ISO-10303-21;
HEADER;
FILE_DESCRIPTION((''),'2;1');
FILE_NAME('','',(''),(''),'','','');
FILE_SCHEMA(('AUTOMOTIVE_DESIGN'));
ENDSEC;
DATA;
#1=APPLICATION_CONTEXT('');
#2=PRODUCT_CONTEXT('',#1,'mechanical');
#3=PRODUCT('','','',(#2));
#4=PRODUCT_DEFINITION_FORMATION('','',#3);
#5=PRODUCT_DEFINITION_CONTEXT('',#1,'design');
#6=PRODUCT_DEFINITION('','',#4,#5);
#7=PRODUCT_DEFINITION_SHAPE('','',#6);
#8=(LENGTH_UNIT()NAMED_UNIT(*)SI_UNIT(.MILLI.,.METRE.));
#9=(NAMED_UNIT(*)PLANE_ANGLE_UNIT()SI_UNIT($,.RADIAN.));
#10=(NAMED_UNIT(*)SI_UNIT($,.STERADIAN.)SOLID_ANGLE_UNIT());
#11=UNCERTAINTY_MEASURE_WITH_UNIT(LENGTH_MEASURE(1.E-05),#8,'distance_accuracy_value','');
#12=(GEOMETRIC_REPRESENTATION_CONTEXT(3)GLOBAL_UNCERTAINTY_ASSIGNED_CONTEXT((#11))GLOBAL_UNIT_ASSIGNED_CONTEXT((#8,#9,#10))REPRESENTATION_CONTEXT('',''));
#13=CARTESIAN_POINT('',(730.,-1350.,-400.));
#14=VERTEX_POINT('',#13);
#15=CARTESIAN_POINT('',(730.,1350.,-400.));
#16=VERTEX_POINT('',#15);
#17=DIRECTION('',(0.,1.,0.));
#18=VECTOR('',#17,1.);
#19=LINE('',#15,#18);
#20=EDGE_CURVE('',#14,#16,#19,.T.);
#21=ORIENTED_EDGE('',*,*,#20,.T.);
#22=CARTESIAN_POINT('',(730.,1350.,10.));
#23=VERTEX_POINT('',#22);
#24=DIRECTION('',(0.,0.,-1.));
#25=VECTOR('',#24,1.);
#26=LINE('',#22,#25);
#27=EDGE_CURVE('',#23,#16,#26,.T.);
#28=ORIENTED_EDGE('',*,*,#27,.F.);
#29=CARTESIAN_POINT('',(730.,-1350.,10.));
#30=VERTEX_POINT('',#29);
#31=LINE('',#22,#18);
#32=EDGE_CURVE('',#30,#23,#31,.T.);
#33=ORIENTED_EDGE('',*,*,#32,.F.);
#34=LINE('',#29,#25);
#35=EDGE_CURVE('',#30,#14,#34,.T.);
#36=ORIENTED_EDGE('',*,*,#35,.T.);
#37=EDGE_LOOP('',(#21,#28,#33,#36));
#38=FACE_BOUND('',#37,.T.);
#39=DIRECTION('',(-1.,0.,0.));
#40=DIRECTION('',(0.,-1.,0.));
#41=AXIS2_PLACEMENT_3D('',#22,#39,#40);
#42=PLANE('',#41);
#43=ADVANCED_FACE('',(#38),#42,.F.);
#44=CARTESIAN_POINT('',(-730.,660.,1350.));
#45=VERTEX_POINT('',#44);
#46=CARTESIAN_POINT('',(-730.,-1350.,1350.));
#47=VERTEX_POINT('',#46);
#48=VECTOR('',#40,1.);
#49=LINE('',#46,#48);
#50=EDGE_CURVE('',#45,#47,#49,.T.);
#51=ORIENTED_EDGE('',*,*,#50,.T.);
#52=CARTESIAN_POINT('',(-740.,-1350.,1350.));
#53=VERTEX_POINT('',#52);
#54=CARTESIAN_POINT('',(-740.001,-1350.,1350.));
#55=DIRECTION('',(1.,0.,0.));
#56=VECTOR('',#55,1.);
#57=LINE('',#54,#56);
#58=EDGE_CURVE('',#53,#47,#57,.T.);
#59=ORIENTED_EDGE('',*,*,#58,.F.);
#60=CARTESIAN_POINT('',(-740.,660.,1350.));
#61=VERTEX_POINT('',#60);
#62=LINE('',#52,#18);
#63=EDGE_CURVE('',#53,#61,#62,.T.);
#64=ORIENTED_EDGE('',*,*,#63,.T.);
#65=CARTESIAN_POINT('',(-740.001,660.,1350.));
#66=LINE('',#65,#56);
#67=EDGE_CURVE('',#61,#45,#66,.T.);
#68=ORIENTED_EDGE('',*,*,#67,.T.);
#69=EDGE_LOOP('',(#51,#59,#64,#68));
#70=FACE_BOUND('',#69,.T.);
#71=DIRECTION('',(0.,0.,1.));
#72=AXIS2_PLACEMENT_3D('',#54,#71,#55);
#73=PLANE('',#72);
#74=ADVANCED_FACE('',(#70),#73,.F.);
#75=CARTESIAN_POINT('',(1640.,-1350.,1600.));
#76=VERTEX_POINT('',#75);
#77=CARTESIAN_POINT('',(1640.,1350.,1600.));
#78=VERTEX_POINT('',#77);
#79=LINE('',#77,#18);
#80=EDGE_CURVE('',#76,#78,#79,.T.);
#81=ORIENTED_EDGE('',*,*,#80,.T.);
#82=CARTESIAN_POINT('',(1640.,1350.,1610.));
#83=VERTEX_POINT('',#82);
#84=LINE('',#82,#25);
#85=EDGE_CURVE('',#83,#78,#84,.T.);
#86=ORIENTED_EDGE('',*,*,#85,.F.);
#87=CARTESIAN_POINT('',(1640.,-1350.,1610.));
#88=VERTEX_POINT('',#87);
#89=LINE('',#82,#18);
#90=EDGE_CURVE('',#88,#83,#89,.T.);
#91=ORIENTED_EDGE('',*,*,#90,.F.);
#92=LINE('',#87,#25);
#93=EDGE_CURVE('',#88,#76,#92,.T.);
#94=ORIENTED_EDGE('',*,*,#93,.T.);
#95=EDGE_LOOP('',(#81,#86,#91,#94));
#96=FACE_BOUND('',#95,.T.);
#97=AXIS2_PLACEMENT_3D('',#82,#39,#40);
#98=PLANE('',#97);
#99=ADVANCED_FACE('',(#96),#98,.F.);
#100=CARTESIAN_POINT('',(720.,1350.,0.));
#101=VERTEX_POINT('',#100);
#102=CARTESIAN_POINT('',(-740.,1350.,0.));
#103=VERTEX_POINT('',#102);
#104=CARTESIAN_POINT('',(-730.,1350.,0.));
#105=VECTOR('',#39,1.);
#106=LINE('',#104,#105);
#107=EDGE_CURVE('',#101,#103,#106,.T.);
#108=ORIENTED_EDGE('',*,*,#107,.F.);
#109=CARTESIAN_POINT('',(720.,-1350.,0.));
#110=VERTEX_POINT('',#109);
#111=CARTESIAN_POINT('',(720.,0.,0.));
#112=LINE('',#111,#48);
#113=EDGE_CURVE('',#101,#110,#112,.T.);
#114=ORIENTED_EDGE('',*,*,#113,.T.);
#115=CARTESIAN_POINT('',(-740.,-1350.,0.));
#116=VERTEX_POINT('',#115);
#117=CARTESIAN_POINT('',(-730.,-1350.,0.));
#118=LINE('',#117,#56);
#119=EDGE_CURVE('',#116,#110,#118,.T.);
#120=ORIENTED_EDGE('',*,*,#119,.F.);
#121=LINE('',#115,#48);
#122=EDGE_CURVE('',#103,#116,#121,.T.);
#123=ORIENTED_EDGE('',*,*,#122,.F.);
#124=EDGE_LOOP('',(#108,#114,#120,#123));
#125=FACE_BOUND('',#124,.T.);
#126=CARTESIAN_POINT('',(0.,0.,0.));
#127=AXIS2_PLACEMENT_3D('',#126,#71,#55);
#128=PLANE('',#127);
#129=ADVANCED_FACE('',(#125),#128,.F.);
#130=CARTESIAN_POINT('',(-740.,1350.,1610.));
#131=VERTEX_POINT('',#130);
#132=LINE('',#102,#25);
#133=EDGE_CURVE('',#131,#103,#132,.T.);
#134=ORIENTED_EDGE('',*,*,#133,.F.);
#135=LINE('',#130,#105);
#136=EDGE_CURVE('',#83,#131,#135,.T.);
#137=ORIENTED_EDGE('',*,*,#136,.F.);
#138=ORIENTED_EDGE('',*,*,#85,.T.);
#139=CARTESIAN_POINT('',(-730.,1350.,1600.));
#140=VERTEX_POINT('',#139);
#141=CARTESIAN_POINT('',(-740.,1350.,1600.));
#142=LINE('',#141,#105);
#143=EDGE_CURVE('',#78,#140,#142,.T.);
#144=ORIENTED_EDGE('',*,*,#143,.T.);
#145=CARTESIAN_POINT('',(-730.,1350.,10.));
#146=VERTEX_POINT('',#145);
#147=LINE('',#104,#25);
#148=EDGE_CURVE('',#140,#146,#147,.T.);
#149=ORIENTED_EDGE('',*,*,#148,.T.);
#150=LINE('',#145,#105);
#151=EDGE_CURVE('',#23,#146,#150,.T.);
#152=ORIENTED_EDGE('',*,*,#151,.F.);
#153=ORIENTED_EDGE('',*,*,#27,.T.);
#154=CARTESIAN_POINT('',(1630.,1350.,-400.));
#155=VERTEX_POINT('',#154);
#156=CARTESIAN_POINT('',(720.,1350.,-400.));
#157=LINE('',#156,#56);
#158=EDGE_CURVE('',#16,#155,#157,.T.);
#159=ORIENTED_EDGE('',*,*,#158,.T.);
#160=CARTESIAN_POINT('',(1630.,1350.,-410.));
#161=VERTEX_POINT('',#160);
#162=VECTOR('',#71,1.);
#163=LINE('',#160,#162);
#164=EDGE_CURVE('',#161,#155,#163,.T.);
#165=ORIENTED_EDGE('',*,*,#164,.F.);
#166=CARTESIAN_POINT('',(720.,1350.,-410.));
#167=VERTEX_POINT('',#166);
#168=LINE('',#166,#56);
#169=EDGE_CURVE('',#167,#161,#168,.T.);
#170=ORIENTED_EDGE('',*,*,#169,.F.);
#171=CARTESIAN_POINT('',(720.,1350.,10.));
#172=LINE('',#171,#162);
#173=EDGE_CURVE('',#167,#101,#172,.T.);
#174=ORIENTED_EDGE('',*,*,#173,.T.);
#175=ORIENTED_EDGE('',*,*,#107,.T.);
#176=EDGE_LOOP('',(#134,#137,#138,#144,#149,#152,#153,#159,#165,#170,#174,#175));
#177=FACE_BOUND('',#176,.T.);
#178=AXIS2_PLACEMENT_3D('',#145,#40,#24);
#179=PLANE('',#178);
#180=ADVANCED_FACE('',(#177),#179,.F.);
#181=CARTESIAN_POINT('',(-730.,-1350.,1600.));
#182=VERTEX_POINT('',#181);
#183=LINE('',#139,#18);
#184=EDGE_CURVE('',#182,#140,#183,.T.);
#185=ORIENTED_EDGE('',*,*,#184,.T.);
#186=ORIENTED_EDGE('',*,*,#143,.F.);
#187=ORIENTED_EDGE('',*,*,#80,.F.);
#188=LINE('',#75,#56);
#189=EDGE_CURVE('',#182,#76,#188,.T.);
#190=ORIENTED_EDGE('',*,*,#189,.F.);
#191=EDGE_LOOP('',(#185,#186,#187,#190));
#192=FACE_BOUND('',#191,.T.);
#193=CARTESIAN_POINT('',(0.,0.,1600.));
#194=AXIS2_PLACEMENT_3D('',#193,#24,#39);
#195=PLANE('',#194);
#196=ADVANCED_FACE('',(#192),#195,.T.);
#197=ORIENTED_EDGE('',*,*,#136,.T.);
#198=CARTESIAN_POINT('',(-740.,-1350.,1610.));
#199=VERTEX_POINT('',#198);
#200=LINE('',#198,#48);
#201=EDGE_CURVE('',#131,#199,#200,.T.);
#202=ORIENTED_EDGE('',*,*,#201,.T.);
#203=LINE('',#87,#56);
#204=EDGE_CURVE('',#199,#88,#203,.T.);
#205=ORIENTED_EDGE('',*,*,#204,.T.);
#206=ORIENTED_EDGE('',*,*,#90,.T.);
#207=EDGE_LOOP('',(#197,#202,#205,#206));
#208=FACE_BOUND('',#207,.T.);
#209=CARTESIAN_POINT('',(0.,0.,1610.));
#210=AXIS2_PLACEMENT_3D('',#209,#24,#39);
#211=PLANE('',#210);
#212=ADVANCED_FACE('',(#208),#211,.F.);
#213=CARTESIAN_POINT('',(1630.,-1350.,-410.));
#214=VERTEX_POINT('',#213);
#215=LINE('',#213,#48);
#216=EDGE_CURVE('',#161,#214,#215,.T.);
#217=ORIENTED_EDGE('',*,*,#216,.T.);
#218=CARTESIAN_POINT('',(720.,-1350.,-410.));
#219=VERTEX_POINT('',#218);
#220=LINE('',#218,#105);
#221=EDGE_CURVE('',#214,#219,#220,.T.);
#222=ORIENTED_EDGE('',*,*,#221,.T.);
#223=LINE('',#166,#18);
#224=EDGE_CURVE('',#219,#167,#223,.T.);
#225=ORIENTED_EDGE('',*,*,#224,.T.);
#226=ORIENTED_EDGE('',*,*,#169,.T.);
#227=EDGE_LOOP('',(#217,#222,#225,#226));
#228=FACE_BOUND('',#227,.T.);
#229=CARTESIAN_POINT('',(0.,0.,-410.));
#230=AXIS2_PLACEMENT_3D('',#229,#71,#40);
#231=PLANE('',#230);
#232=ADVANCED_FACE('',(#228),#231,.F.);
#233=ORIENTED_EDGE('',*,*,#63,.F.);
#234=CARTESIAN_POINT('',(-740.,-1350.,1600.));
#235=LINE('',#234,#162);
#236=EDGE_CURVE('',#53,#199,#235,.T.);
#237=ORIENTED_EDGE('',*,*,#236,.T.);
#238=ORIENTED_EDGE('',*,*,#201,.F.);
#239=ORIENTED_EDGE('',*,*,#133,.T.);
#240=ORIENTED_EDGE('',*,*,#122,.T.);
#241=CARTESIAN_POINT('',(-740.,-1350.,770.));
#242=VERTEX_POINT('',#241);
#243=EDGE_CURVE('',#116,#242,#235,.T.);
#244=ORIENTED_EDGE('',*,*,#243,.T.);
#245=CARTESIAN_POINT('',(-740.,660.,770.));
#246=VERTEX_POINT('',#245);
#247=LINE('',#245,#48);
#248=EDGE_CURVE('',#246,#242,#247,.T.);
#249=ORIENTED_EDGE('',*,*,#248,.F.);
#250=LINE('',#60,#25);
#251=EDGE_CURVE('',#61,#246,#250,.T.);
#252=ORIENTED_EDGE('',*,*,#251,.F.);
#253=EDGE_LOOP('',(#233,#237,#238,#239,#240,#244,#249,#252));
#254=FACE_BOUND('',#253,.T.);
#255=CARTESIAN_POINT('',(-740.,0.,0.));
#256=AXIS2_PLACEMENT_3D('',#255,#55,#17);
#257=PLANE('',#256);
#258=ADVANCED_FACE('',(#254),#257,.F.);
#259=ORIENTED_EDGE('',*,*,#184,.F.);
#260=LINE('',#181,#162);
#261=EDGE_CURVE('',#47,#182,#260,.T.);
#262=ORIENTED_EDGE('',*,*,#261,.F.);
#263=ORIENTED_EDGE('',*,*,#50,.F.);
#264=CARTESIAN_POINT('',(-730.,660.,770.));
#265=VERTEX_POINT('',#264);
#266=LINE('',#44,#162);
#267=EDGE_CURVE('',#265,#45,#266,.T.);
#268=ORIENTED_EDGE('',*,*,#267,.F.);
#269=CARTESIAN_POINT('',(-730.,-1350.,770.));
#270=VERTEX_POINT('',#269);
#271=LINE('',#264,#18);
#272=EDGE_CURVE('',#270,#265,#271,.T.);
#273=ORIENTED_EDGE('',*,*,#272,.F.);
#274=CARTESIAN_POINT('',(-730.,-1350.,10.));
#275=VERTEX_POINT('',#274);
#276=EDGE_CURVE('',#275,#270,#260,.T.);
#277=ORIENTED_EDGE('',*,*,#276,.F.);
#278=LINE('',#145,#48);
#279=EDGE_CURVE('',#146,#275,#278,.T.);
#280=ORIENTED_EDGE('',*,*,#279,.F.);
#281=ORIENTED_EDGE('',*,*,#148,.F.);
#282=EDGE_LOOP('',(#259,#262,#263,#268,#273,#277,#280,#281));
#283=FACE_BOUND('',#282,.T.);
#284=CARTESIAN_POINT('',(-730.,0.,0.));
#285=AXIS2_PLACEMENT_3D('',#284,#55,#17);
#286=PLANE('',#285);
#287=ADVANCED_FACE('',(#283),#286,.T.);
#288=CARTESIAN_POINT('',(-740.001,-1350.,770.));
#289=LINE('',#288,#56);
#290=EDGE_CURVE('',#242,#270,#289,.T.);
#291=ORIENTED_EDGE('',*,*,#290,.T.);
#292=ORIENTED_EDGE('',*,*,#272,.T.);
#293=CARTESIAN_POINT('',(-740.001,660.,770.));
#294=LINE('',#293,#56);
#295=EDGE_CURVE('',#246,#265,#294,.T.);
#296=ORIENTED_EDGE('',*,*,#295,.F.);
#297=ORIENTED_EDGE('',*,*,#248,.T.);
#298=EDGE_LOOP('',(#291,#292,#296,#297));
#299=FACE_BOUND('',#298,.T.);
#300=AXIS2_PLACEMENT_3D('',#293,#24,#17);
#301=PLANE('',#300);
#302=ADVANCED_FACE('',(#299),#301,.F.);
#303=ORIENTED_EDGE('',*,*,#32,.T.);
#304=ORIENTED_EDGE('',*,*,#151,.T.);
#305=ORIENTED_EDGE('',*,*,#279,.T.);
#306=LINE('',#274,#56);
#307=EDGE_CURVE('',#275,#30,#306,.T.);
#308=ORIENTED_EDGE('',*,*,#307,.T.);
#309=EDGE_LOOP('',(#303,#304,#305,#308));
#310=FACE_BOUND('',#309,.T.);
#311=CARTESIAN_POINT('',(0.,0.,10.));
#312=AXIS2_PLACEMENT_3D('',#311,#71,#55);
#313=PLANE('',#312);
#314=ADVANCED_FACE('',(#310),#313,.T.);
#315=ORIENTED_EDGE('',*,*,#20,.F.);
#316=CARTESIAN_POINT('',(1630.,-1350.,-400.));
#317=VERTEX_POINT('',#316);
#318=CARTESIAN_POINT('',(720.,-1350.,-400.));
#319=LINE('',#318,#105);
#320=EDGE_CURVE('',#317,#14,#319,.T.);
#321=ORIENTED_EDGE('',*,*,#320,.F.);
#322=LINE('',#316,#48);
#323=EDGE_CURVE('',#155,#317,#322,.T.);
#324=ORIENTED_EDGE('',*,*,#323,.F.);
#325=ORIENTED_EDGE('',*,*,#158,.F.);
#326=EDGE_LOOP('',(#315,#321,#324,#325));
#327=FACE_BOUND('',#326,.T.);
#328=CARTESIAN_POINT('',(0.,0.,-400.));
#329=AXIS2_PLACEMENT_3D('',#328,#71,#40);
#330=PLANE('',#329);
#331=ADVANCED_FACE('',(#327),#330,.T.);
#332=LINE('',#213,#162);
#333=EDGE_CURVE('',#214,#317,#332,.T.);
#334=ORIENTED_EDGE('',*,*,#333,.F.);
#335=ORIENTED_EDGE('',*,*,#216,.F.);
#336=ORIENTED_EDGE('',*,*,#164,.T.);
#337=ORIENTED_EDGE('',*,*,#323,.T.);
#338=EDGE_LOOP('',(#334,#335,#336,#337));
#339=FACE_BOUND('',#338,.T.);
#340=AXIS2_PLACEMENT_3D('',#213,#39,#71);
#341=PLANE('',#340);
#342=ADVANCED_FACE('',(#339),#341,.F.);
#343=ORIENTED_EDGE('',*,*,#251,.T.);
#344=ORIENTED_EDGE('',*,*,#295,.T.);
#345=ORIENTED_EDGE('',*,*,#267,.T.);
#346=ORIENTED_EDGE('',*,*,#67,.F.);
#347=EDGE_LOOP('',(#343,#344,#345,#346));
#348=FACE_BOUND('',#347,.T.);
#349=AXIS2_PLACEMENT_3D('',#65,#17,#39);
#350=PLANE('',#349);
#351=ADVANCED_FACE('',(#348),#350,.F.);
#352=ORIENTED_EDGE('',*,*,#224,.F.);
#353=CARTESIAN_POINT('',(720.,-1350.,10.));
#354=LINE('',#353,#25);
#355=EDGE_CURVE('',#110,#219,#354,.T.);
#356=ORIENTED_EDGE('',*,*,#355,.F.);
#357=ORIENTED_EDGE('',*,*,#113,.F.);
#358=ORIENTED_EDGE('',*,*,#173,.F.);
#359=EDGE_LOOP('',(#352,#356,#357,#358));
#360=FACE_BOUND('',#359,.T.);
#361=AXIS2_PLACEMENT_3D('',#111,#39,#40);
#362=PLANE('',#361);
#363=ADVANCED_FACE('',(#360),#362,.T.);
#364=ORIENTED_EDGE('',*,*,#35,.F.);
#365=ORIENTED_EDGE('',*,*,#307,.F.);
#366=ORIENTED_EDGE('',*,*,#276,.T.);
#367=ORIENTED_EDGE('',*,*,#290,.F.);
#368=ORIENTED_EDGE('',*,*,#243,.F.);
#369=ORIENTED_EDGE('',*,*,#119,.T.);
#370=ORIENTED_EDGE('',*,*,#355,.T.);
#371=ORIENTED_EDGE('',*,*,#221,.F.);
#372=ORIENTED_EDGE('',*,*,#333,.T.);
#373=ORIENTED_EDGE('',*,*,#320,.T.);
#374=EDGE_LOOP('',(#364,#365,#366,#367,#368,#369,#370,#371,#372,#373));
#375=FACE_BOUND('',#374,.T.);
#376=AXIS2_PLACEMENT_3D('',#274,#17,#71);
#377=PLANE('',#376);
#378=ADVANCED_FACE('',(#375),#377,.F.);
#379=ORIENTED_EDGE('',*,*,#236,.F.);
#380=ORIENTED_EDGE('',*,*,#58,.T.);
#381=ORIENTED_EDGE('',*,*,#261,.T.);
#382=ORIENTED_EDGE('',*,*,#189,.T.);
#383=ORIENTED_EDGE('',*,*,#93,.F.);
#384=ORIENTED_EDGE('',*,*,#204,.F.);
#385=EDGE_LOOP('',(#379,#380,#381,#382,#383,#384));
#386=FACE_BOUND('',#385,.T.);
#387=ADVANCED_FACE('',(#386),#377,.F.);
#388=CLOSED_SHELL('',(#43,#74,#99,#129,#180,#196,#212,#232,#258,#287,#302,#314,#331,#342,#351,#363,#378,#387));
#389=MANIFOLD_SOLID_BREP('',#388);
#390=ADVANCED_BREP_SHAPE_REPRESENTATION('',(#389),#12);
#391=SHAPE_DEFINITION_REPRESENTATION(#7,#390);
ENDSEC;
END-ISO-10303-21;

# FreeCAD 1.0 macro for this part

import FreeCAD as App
import Part
import Sketcher
from FreeCAD import Vector
Q = App.Units.Quantity


def add_polygon(sketch, points):
    """Adds a closed chain of lines whose ends are joined by coincident constraints."""
    first, n = sketch.GeometryCount, len(points)
    for a, b in zip(points, points[1:] + points[:1]):
        sketch.addGeometry(Part.LineSegment(App.Vector(*a, 0), App.Vector(*b, 0)), False)
    for i in range(n):
        sketch.addConstraint(Sketcher.Constraint("Coincident", first + i, 2, first + (i + 1) % n, 1))

doc = App.newDocument("Part")
params = doc.addObject("Spreadsheet::Sheet", "Params")
for row, (alias, value) in enumerate([
    ("sketch1_width", "1460 mm"),
    ("sketch1_height", "2700 mm"),
    ("pad1_length", "10 mm"),
    ("sketch2_width", "2700 mm"),
    ("sketch2_height", "410 mm"),
    ("pad2_length", "10 mm"),
    ("sketch3_width", "910 mm"),
    ("sketch3_height", "2700 mm"),
    ("pad3_length", "10 mm"),
    ("sketch4_width", "2700 mm"),
    ("sketch4_height", "1600 mm"),
    ("pad4_length", "10 mm"),
    ("sketch5_width", "2380 mm"),
    ("sketch5_height", "2700 mm"),
    ("pad5_length", "10 mm"),
    ("sketch6_width", "2010 mm"),
    ("sketch6_height", "580 mm"),
], start=1):
    params.set(f"A{row}", alias)
    params.set(f"B{row}", "=" + value)
    params.setAlias(f"B{row}", alias)

body = doc.addObject("PartDesign::Body", "Body")

# Sketch on XY plane
sketch1 = doc.addObject("Sketcher::SketchObject", "Sketch")
body.addObject(sketch1)
sketch1.AttachmentSupport = (doc.XY_Plane, [""])
sketch1.MapMode = "FlatFace"
add_polygon(sketch1, [(-730, 1350), (-730, -1350), (730, -1350), (730, 1350)])  # lines 0-3
sketch1.addConstraint([
    Sketcher.Constraint("Vertical", 0),
    Sketcher.Constraint("Horizontal", 1),
    Sketcher.Constraint("Vertical", 2),
    Sketcher.Constraint("Horizontal", 3),
    Sketcher.Constraint("Symmetric", 0, 2, 2, 2, -1, 1),
    Sketcher.Constraint("DistanceX", 1, 1, 1, 2, Q("1460 mm")),
    Sketcher.Constraint("DistanceY", 0, 2, 0, 1, Q("2700 mm")),
])
sketch1.setExpression("Constraints[9]", "Params.sketch1_width")
sketch1.setExpression("Constraints[10]", "Params.sketch1_height")
pad1 = doc.addObject("PartDesign::Pad", "Pad")
body.addObject(pad1)
pad1.Profile = sketch1
pad1.setExpression("Length", "Params.pad1_length")

# Sketch on YZ plane
sketch2 = doc.addObject("Sketcher::SketchObject", "Sketch001")
body.addObject(sketch2)
sketch2.AttachmentSupport = (doc.YZ_Plane, [""])
sketch2.MapMode = "FlatFace"
sketch2.AttachmentOffset = App.Placement(Vector(0, 0, 730), App.Rotation())
add_polygon(sketch2, [(1350, 10), (-1350, 10), (-1350, -400), (1350, -400)])  # lines 0-3
sketch2.addConstraint([
    Sketcher.Constraint("Horizontal", 0),
    Sketcher.Constraint("Vertical", 1),
    Sketcher.Constraint("Horizontal", 2),
    Sketcher.Constraint("Vertical", 3),
    Sketcher.Constraint("DistanceX", 0, 2, 0, 1, Q("2700 mm")),
    Sketcher.Constraint("DistanceY", 1, 2, 1, 1, Q("410 mm")),
    Sketcher.Constraint("DistanceX", 0, 2, -1, 1, Q("1350 mm")),
    Sketcher.Constraint("DistanceY", -1, 1, 0, 2, Q("10 mm")),
])
sketch2.setExpression("Constraints[8]", "Params.sketch2_width")
sketch2.setExpression("Constraints[9]", "Params.sketch2_height")
pad2 = doc.addObject("PartDesign::Pad", "Pad001")
body.addObject(pad2)
pad2.Profile = sketch2
pad2.setExpression("Length", "Params.pad2_length")
pad2.Reversed = True

# Sketch on XY plane
sketch3 = doc.addObject("Sketcher::SketchObject", "Sketch002")
body.addObject(sketch3)
sketch3.AttachmentSupport = (doc.XY_Plane, [""])
sketch3.MapMode = "FlatFace"
sketch3.AttachmentOffset = App.Placement(Vector(0, 0, -400), App.Rotation())
add_polygon(sketch3, [(1630, 1350), (1630, -1350), (720, -1350), (720, 1350)])  # lines 0-3
sketch3.addConstraint([
    Sketcher.Constraint("Vertical", 0),
    Sketcher.Constraint("Horizontal", 1),
    Sketcher.Constraint("Vertical", 2),
    Sketcher.Constraint("Horizontal", 3),
    Sketcher.Constraint("DistanceX", 1, 2, 1, 1, Q("910 mm")),
    Sketcher.Constraint("DistanceY", 0, 2, 0, 1, Q("2700 mm")),
    Sketcher.Constraint("DistanceX", -1, 1, 0, 2, Q("1630 mm")),
    Sketcher.Constraint("DistanceY", 0, 2, -1, 1, Q("1350 mm")),
])
sketch3.setExpression("Constraints[8]", "Params.sketch3_width")
sketch3.setExpression("Constraints[9]", "Params.sketch3_height")
pad3 = doc.addObject("PartDesign::Pad", "Pad002")
body.addObject(pad3)
pad3.Profile = sketch3
pad3.setExpression("Length", "Params.pad3_length")
pad3.Reversed = True

# Sketch on YZ plane
sketch4 = doc.addObject("Sketcher::SketchObject", "Sketch003")
body.addObject(sketch4)
sketch4.AttachmentSupport = (doc.YZ_Plane, [""])
sketch4.MapMode = "FlatFace"
sketch4.AttachmentOffset = App.Placement(Vector(0, 0, -730), App.Rotation())
add_polygon(sketch4, [(1350, 0), (-1350, 0), (-1350, 1600), (1350, 1600)])  # lines 0-3
sketch4.addConstraint([
    Sketcher.Constraint("Horizontal", 0),
    Sketcher.Constraint("Vertical", 1),
    Sketcher.Constraint("Horizontal", 2),
    Sketcher.Constraint("Vertical", 3),
    Sketcher.Constraint("Symmetric", 0, 2, 3, 2, -1, 1),
    Sketcher.Constraint("DistanceX", 0, 2, 0, 1, Q("2700 mm")),
    Sketcher.Constraint("DistanceY", 1, 1, 1, 2, Q("1600 mm")),
])
sketch4.setExpression("Constraints[9]", "Params.sketch4_width")
sketch4.setExpression("Constraints[10]", "Params.sketch4_height")
pad4 = doc.addObject("PartDesign::Pad", "Pad003")
body.addObject(pad4)
pad4.Profile = sketch4
pad4.setExpression("Length", "Params.pad4_length")
pad4.Reversed = True

# Sketch on XY plane
sketch5 = doc.addObject("Sketcher::SketchObject", "Sketch004")
body.addObject(sketch5)
sketch5.AttachmentSupport = (doc.XY_Plane, [""])
sketch5.MapMode = "FlatFace"
sketch5.AttachmentOffset = App.Placement(Vector(0, 0, 1600), App.Rotation())
add_polygon(sketch5, [(-740, 1350), (-740, -1350), (1640, -1350), (1640, 1350)])  # lines 0-3
sketch5.addConstraint([
    Sketcher.Constraint("Vertical", 0),
    Sketcher.Constraint("Horizontal", 1),
    Sketcher.Constraint("Vertical", 2),
    Sketcher.Constraint("Horizontal", 3),
    Sketcher.Constraint("DistanceX", 1, 1, 1, 2, Q("2380 mm")),
    Sketcher.Constraint("DistanceY", 0, 2, 0, 1, Q("2700 mm")),
    Sketcher.Constraint("DistanceX", 0, 2, -1, 1, Q("740 mm")),
    Sketcher.Constraint("DistanceY", 0, 2, -1, 1, Q("1350 mm")),
])
sketch5.setExpression("Constraints[8]", "Params.sketch5_width")
sketch5.setExpression("Constraints[9]", "Params.sketch5_height")
pad5 = doc.addObject("PartDesign::Pad", "Pad004")
body.addObject(pad5)
pad5.Profile = sketch5
pad5.setExpression("Length", "Params.pad5_length")

# Sketch on YZ plane
sketch6 = doc.addObject("Sketcher::SketchObject", "Sketch005")
body.addObject(sketch6)
sketch6.AttachmentSupport = (doc.YZ_Plane, [""])
sketch6.MapMode = "FlatFace"
sketch6.AttachmentOffset = App.Placement(Vector(0, 0, -730), App.Rotation())
add_polygon(sketch6, [(660, 1350), (-1350, 1350), (-1350, 770), (660, 770)])  # lines 0-3
sketch6.addConstraint([
    Sketcher.Constraint("Horizontal", 0),
    Sketcher.Constraint("Vertical", 1),
    Sketcher.Constraint("Horizontal", 2),
    Sketcher.Constraint("Vertical", 3),
    Sketcher.Constraint("DistanceX", 0, 2, 0, 1, Q("2010 mm")),
    Sketcher.Constraint("DistanceY", 1, 2, 1, 1, Q("580 mm")),
    Sketcher.Constraint("DistanceX", 0, 2, -1, 1, Q("1350 mm")),
    Sketcher.Constraint("DistanceY", -1, 1, 0, 2, Q("1350 mm")),
])
sketch6.setExpression("Constraints[8]", "Params.sketch6_width")
sketch6.setExpression("Constraints[9]", "Params.sketch6_height")
pocket1 = doc.addObject("PartDesign::Pocket", "Pocket")
body.addObject(pocket1)
pocket1.Profile = sketch6
pocket1.Type = "UpToFirst"

doc.recompute()
